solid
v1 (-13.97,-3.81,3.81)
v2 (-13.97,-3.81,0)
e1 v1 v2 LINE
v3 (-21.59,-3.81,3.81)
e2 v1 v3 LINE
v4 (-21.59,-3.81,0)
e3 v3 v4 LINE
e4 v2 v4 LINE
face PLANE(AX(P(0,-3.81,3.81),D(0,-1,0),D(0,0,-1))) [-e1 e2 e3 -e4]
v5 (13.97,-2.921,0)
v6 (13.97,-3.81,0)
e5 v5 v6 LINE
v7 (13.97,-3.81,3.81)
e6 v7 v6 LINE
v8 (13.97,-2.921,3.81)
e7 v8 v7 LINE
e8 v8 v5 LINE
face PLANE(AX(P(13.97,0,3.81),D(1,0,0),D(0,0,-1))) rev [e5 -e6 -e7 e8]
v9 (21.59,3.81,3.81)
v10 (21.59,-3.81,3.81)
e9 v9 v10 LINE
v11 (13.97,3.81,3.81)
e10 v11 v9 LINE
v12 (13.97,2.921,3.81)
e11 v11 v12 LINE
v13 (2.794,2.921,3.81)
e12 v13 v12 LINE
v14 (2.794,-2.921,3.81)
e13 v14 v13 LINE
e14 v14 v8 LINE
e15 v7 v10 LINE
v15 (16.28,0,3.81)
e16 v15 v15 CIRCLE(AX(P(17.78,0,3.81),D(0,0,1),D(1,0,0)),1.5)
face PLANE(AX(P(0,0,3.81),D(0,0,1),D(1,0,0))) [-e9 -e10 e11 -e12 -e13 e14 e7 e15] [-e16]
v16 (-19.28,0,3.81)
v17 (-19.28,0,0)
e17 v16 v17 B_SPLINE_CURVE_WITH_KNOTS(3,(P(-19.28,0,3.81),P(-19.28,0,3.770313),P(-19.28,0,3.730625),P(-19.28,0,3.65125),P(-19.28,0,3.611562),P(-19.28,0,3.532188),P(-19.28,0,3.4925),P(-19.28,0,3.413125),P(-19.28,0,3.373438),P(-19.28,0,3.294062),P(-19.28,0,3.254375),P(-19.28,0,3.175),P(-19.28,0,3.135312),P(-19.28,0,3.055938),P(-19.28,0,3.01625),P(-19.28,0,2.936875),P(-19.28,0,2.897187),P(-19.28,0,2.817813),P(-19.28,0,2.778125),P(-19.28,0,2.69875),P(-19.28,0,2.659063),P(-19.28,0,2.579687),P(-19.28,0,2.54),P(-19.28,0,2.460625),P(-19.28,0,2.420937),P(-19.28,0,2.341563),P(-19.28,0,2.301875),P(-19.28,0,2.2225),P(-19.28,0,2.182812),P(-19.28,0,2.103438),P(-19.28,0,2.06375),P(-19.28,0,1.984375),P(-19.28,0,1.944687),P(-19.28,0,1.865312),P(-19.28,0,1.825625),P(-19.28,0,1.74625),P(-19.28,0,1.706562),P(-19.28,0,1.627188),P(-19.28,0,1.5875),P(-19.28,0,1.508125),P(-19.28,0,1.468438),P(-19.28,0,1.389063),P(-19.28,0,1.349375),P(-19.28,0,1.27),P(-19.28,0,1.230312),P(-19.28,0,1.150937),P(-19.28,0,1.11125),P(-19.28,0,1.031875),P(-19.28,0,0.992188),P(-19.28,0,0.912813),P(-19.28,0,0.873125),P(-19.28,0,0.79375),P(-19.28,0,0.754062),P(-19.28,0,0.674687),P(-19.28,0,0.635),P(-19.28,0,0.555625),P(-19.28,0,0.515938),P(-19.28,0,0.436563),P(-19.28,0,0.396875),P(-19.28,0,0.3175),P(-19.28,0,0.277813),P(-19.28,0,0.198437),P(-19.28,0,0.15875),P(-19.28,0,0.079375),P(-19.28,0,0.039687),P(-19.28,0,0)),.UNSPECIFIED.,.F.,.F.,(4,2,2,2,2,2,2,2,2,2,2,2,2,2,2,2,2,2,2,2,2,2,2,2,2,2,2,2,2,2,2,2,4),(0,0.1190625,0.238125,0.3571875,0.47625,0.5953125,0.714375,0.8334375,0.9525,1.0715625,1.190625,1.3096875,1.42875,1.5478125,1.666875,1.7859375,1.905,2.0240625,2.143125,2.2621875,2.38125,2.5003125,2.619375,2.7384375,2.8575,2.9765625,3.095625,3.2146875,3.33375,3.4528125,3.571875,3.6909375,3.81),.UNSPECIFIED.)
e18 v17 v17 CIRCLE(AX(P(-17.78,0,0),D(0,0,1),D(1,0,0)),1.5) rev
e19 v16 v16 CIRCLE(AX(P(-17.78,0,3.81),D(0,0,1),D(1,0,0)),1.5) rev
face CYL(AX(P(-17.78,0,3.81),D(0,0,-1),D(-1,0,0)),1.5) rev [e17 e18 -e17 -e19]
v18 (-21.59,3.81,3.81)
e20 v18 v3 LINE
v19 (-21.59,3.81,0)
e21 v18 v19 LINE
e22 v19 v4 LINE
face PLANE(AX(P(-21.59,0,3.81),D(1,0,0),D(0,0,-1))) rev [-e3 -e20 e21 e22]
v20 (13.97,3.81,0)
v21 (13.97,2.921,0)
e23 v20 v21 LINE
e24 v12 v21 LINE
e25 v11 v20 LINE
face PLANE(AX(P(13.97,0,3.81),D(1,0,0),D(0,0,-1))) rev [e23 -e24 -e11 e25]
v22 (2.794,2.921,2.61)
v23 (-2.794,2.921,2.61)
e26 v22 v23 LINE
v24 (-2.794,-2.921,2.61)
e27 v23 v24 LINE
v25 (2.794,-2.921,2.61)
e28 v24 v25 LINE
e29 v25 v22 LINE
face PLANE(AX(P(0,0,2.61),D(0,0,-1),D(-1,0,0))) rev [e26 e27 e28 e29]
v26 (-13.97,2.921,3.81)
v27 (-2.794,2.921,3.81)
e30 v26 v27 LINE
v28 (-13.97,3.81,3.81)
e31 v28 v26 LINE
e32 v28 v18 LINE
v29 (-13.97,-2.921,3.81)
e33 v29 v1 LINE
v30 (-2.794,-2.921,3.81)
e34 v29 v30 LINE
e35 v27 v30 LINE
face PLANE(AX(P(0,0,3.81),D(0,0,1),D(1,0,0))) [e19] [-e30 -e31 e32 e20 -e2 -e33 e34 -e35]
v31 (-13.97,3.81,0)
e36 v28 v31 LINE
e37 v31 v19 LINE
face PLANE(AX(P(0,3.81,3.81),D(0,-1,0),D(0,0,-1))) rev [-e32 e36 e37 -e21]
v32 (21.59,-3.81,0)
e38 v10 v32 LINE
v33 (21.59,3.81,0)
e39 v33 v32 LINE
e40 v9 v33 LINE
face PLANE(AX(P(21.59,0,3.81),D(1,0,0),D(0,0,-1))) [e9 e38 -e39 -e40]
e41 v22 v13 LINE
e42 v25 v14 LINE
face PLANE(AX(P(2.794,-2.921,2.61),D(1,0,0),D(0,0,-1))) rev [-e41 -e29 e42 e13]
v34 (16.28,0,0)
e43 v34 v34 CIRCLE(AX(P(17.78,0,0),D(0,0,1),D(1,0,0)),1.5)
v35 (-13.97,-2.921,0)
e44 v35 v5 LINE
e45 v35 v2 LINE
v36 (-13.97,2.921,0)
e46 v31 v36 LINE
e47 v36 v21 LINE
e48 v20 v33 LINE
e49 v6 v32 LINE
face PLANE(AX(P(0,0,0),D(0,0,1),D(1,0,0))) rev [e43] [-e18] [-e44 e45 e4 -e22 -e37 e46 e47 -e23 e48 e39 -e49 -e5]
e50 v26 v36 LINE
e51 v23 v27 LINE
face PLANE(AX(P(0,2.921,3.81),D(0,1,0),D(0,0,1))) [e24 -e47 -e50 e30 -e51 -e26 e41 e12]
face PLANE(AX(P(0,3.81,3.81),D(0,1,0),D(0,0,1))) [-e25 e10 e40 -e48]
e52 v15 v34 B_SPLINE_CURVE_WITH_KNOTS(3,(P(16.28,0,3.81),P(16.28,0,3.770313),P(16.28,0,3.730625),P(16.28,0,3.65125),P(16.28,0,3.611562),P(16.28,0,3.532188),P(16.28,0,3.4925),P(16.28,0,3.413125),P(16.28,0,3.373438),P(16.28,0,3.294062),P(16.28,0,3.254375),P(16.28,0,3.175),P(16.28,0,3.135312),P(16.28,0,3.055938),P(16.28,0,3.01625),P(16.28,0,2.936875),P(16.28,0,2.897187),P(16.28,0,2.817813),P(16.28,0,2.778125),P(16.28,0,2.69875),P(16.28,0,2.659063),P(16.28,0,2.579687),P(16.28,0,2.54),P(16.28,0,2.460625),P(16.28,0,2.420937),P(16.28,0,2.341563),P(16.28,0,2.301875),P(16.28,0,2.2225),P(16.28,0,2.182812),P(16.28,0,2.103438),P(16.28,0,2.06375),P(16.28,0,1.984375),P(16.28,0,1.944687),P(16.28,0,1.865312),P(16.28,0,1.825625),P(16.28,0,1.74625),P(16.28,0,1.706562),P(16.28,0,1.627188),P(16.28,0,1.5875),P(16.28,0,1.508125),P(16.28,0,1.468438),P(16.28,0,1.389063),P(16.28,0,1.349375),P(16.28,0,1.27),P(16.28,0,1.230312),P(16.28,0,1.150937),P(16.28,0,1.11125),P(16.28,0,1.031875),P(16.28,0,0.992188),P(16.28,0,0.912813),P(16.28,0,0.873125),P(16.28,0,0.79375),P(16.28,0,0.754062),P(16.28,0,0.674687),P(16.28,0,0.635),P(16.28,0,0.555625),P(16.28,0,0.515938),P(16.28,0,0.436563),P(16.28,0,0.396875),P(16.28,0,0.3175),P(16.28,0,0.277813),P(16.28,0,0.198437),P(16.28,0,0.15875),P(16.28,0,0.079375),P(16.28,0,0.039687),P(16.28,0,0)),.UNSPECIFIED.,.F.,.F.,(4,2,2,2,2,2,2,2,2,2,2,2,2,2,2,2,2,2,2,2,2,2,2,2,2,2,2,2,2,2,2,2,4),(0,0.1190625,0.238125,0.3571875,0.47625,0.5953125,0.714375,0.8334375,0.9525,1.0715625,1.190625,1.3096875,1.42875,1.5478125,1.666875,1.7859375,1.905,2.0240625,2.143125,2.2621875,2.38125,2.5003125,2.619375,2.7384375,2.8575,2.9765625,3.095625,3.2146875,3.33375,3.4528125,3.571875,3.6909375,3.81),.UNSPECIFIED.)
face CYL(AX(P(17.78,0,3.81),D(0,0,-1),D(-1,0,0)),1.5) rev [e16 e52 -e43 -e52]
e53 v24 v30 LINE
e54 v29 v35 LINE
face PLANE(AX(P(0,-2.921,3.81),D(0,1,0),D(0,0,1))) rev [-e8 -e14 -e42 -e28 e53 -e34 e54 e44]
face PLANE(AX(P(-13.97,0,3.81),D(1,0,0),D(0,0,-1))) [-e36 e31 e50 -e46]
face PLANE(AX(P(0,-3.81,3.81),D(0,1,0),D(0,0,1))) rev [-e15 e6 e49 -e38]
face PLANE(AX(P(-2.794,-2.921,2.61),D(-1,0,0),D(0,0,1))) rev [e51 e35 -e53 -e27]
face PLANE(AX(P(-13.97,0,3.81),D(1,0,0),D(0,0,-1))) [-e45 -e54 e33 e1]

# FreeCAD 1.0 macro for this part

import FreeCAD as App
import Part
import Sketcher
from FreeCAD import Vector
Q = App.Units.Quantity

doc = App.newDocument("Part")
params = doc.addObject("Spreadsheet::Sheet", "Params")
for row, (alias, value) in enumerate([
    ("sketch1_width", "1.1 in"),
    ("sketch1_width2", "0.3 in"),
    ("sketch1_height", "0.035 in"),
    ("pad1_length", "0.15 in"),
    ("sketch2_width", "0.22 in"),
    ("sketch2_height", "0.23 in"),
    ("pocket1_length", "1.2 mm"),
], start=1):
    params.set(f"A{row}", alias)
    params.set(f"B{row}", "=" + value)
    params.setAlias(f"B{row}", alias)

body = doc.addObject("PartDesign::Body", "Body")

sketch1 = body.newObject("Sketcher::SketchObject", "Sketch")
sketch1.AttachmentSupport = (doc.getObject("XY_Plane"), [""])
sketch1.MapMode = "FlatFace"
sketch1.addGeometry([
    Part.LineSegment(Vector(-14, -3.8, 0), Vector(-14, -2.9, 0)),
    Part.LineSegment(Vector(-14, -2.9, 0), Vector(14, -2.9, 0)),
    Part.LineSegment(Vector(14, -2.9, 0), Vector(14, -3.8, 0)),
    Part.LineSegment(Vector(14, -3.8, 0), Vector(21.6, -3.8, 0)),
    Part.LineSegment(Vector(21.6, -3.8, 0), Vector(21.6, 3.8, 0)),
    Part.LineSegment(Vector(21.6, 3.8, 0), Vector(14, 3.8, 0)),
    Part.LineSegment(Vector(14, 3.8, 0), Vector(14, 2.9, 0)),
    Part.LineSegment(Vector(14, 2.9, 0), Vector(-14, 2.9, 0)),
    Part.LineSegment(Vector(-14, 2.9, 0), Vector(-14, 3.8, 0)),
    Part.LineSegment(Vector(-14, 3.8, 0), Vector(-21.6, 3.8, 0)),
    Part.LineSegment(Vector(-21.6, 3.8, 0), Vector(-21.6, -3.8, 0)),
    Part.LineSegment(Vector(-21.6, -3.8, 0), Vector(-14, -3.8, 0)),
    Part.Circle(Vector(-17.8, 0, 0), Vector(0, 0, 1), 1.5),
    Part.Circle(Vector(17.8, 0, 0), Vector(0, 0, 1), 1.5),
], False)
sketch1.addConstraint([
    Sketcher.Constraint("Coincident", 0, 2, 1, 1),
    Sketcher.Constraint("Coincident", 1, 2, 2, 1),
    Sketcher.Constraint("Coincident", 2, 2, 3, 1),
    Sketcher.Constraint("Coincident", 3, 2, 4, 1),
    Sketcher.Constraint("Coincident", 4, 2, 5, 1),
    Sketcher.Constraint("Coincident", 5, 2, 6, 1),
    Sketcher.Constraint("Coincident", 6, 2, 7, 1),
    Sketcher.Constraint("Coincident", 7, 2, 8, 1),
    Sketcher.Constraint("Coincident", 8, 2, 9, 1),
    Sketcher.Constraint("Coincident", 9, 2, 10, 1),
    Sketcher.Constraint("Coincident", 10, 2, 11, 1),
    Sketcher.Constraint("Coincident", 11, 2, 0, 1),
    Sketcher.Constraint("Vertical", 0),
    Sketcher.Constraint("Horizontal", 1),
    Sketcher.Constraint("Vertical", 2),
    Sketcher.Constraint("Horizontal", 3),
    Sketcher.Constraint("Vertical", 4),
    Sketcher.Constraint("Horizontal", 5),
    Sketcher.Constraint("Vertical", 6),
    Sketcher.Constraint("Horizontal", 7),
    Sketcher.Constraint("Vertical", 8),
    Sketcher.Constraint("Horizontal", 9),
    Sketcher.Constraint("Vertical", 10),
    Sketcher.Constraint("Horizontal", 11),
    Sketcher.Constraint("Equal", 12, 13),
    Sketcher.Constraint("Symmetric", 12, 3, 13, 3, -1, 1),
    Sketcher.Constraint("Symmetric", 0, 2, 6, 2, -1, 1),
    Sketcher.Constraint("Symmetric", 2, 2, 8, 2, -1, 1),
    Sketcher.Constraint("Symmetric", 4, 2, 10, 2, -1, 1),
    Sketcher.Constraint("Symmetric", 5, 2, 8, 2, -2),
    Sketcher.Constraint("PointOnObject", 12, 3, -1),
    Sketcher.Constraint("Equal", 11, 4),
    Sketcher.Constraint("DistanceX", 1, 1, 1, 2, Q("1.1 in")),
    Sketcher.Constraint("DistanceX", 3, 1, 3, 2, Q("0.3 in")),
    Sketcher.Constraint("DistanceX", 12, 3, -1, 1, Q("0.7 in")),
    Sketcher.Constraint("Diameter", 12, Q("3 mm")),
    Sketcher.Constraint("DistanceY", 0, 1, 0, 2, Q("0.035 in")),
])
sketch1.setExpression("Constraints[32]", "Params.sketch1_width")
sketch1.setExpression("Constraints[33]", "Params.sketch1_width2")
sketch1.setExpression("Constraints[36]", "Params.sketch1_height")
pad1 = body.newObject("PartDesign::Pad", "Pad")
pad1.Profile = sketch1
pad1.setExpression("Length", "Params.pad1_length")

sketch2 = body.newObject("Sketcher::SketchObject", "Sketch001")
sketch2.AttachmentSupport = (doc.getObject("XY_Plane"), [""])
sketch2.MapMode = "FlatFace"
sketch2.AttachmentOffset = App.Placement(Vector(0, 0, 0.15 * 25.4), App.Rotation())
sketch2.addGeometry([
    Part.LineSegment(Vector(-3, 3, 0), Vector(-3, -3, 0)),
    Part.LineSegment(Vector(-3, -3, 0), Vector(3, -3, 0)),
    Part.LineSegment(Vector(3, -3, 0), Vector(3, 3, 0)),
    Part.LineSegment(Vector(3, 3, 0), Vector(-3, 3, 0)),
], False)
sketch2.addConstraint([
    Sketcher.Constraint("Coincident", 0, 2, 1, 1),
    Sketcher.Constraint("Coincident", 1, 2, 2, 1),
    Sketcher.Constraint("Coincident", 2, 2, 3, 1),
    Sketcher.Constraint("Coincident", 3, 2, 0, 1),
    Sketcher.Constraint("Vertical", 0),
    Sketcher.Constraint("Horizontal", 1),
    Sketcher.Constraint("Vertical", 2),
    Sketcher.Constraint("Horizontal", 3),
    Sketcher.Constraint("Symmetric", 0, 2, 2, 2, -1, 1),
    Sketcher.Constraint("DistanceX", 1, 1, 1, 2, Q("0.22 in")),
    Sketcher.Constraint("DistanceY", 0, 2, 0, 1, Q("0.23 in")),
])
sketch2.setExpression("Constraints[9]", "Params.sketch2_width")
sketch2.setExpression("Constraints[10]", "Params.sketch2_height")
pocket1 = body.newObject("PartDesign::Pocket", "Pocket")
pocket1.Profile = sketch2
pocket1.setExpression("Length", "Params.pocket1_length")

doc.recompute()
